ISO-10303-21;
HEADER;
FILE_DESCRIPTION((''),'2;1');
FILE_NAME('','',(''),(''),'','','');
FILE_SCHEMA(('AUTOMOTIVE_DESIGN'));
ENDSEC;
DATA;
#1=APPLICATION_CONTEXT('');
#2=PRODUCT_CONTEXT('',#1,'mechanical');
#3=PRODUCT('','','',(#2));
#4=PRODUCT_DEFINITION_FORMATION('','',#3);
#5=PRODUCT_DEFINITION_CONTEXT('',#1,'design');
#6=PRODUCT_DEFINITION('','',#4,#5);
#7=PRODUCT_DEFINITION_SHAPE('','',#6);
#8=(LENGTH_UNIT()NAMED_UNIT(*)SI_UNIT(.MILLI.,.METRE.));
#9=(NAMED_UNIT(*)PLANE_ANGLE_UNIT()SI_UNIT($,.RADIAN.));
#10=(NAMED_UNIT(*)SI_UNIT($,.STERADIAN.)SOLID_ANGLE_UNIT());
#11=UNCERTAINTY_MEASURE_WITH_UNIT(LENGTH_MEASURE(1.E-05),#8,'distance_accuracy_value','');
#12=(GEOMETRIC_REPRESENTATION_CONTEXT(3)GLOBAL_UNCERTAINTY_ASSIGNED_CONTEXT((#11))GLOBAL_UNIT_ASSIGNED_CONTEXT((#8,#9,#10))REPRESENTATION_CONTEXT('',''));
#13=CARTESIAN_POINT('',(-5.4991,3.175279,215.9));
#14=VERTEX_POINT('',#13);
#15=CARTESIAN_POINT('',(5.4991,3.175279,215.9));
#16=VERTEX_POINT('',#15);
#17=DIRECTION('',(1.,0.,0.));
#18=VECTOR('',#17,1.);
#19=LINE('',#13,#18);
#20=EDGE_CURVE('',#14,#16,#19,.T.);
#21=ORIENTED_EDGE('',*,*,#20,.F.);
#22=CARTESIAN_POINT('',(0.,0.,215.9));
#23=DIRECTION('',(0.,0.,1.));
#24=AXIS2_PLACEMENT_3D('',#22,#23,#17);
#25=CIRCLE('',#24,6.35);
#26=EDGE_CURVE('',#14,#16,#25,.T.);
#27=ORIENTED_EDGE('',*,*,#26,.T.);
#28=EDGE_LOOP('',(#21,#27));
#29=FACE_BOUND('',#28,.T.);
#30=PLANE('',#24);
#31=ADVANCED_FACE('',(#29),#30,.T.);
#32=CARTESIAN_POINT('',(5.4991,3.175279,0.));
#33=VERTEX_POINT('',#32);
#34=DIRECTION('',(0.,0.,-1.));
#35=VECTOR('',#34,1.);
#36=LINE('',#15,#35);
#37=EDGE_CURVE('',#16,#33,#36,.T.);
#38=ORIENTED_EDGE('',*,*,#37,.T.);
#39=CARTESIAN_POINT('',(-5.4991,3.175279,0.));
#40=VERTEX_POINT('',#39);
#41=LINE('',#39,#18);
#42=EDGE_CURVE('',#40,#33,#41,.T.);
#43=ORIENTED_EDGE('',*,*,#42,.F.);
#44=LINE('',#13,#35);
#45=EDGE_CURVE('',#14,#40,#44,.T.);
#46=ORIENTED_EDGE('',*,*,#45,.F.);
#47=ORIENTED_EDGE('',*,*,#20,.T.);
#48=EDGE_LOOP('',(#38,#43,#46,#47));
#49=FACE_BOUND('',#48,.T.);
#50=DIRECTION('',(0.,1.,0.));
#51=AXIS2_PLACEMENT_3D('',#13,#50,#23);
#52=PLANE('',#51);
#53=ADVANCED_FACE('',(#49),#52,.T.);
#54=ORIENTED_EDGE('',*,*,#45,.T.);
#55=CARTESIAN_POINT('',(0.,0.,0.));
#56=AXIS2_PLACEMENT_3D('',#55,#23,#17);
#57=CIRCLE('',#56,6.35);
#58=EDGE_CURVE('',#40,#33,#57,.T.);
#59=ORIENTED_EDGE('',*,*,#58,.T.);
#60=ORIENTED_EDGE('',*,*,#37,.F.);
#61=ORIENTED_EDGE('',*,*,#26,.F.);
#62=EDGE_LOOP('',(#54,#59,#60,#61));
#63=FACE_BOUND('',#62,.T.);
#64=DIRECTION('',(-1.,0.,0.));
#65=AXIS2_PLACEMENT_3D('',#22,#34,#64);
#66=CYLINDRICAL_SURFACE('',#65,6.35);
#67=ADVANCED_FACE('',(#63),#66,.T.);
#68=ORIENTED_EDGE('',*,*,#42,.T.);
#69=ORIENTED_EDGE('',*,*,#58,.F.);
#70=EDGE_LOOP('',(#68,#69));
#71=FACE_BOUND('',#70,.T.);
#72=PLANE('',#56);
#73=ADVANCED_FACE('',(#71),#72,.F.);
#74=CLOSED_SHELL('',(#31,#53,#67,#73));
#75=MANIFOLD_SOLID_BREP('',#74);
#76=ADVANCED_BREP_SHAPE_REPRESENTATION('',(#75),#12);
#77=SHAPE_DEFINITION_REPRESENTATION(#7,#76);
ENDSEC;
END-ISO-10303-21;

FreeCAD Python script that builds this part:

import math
import FreeCAD as App
import Part
import Sketcher
Q = App.Units.Quantity

doc = App.newDocument("Part")
params = doc.addObject("Spreadsheet::Sheet", "Params")
for row, (alias, value) in enumerate([
    ("sketch1_radius", "0.25 in"),
    ("sketch1_width", "0.433 in"),
    ("pad1_length", "8.5 in"),
], start=1):
    params.set(f"A{row}", alias)
    params.set(f"B{row}", "=" + value)
    params.setAlias(f"B{row}", alias)

body = doc.addObject("PartDesign::Body", "Body")

sketch1 = body.newObject("Sketcher::SketchObject", "Sketch")
sketch1.AttachmentSupport = (doc.getObject("XY_Plane"), [""])
sketch1.MapMode = "FlatFace"
sketch1.addGeometry(Part.LineSegment(App.Vector(5.4991, 3.175279, 0), App.Vector(-5.4991, 3.175279, 0)), False)
sketch1.addGeometry(Part.ArcOfCircle(Part.Circle(App.Vector(0, 0, 0), App.Vector(0, 0, 1), 6.35), math.radians(149.997089), math.radians(390.002911)), False)
sketch1.addConstraint(Sketcher.Constraint("Coincident", 0, 1, 1, 2))
sketch1.addConstraint(Sketcher.Constraint("Coincident", 1, 1, 0, 2))
sketch1.addConstraint(Sketcher.Constraint("Horizontal", 0))
sketch1.addConstraint(Sketcher.Constraint("Coincident", 1, 3, -1, 1))
sketch1.addConstraint(Sketcher.Constraint("Radius", 1, Q("0.25 in")))
sketch1.addConstraint(Sketcher.Constraint("DistanceX", 0, 2, 0, 1, Q("0.433 in")))
sketch1.setExpression("Constraints[4]", "Params.sketch1_radius")
sketch1.setExpression("Constraints[5]", "Params.sketch1_width")
pad1 = body.newObject("PartDesign::Pad", "Pad")
pad1.Profile = sketch1
pad1.setExpression("Length", "Params.pad1_length")

doc.recompute()
